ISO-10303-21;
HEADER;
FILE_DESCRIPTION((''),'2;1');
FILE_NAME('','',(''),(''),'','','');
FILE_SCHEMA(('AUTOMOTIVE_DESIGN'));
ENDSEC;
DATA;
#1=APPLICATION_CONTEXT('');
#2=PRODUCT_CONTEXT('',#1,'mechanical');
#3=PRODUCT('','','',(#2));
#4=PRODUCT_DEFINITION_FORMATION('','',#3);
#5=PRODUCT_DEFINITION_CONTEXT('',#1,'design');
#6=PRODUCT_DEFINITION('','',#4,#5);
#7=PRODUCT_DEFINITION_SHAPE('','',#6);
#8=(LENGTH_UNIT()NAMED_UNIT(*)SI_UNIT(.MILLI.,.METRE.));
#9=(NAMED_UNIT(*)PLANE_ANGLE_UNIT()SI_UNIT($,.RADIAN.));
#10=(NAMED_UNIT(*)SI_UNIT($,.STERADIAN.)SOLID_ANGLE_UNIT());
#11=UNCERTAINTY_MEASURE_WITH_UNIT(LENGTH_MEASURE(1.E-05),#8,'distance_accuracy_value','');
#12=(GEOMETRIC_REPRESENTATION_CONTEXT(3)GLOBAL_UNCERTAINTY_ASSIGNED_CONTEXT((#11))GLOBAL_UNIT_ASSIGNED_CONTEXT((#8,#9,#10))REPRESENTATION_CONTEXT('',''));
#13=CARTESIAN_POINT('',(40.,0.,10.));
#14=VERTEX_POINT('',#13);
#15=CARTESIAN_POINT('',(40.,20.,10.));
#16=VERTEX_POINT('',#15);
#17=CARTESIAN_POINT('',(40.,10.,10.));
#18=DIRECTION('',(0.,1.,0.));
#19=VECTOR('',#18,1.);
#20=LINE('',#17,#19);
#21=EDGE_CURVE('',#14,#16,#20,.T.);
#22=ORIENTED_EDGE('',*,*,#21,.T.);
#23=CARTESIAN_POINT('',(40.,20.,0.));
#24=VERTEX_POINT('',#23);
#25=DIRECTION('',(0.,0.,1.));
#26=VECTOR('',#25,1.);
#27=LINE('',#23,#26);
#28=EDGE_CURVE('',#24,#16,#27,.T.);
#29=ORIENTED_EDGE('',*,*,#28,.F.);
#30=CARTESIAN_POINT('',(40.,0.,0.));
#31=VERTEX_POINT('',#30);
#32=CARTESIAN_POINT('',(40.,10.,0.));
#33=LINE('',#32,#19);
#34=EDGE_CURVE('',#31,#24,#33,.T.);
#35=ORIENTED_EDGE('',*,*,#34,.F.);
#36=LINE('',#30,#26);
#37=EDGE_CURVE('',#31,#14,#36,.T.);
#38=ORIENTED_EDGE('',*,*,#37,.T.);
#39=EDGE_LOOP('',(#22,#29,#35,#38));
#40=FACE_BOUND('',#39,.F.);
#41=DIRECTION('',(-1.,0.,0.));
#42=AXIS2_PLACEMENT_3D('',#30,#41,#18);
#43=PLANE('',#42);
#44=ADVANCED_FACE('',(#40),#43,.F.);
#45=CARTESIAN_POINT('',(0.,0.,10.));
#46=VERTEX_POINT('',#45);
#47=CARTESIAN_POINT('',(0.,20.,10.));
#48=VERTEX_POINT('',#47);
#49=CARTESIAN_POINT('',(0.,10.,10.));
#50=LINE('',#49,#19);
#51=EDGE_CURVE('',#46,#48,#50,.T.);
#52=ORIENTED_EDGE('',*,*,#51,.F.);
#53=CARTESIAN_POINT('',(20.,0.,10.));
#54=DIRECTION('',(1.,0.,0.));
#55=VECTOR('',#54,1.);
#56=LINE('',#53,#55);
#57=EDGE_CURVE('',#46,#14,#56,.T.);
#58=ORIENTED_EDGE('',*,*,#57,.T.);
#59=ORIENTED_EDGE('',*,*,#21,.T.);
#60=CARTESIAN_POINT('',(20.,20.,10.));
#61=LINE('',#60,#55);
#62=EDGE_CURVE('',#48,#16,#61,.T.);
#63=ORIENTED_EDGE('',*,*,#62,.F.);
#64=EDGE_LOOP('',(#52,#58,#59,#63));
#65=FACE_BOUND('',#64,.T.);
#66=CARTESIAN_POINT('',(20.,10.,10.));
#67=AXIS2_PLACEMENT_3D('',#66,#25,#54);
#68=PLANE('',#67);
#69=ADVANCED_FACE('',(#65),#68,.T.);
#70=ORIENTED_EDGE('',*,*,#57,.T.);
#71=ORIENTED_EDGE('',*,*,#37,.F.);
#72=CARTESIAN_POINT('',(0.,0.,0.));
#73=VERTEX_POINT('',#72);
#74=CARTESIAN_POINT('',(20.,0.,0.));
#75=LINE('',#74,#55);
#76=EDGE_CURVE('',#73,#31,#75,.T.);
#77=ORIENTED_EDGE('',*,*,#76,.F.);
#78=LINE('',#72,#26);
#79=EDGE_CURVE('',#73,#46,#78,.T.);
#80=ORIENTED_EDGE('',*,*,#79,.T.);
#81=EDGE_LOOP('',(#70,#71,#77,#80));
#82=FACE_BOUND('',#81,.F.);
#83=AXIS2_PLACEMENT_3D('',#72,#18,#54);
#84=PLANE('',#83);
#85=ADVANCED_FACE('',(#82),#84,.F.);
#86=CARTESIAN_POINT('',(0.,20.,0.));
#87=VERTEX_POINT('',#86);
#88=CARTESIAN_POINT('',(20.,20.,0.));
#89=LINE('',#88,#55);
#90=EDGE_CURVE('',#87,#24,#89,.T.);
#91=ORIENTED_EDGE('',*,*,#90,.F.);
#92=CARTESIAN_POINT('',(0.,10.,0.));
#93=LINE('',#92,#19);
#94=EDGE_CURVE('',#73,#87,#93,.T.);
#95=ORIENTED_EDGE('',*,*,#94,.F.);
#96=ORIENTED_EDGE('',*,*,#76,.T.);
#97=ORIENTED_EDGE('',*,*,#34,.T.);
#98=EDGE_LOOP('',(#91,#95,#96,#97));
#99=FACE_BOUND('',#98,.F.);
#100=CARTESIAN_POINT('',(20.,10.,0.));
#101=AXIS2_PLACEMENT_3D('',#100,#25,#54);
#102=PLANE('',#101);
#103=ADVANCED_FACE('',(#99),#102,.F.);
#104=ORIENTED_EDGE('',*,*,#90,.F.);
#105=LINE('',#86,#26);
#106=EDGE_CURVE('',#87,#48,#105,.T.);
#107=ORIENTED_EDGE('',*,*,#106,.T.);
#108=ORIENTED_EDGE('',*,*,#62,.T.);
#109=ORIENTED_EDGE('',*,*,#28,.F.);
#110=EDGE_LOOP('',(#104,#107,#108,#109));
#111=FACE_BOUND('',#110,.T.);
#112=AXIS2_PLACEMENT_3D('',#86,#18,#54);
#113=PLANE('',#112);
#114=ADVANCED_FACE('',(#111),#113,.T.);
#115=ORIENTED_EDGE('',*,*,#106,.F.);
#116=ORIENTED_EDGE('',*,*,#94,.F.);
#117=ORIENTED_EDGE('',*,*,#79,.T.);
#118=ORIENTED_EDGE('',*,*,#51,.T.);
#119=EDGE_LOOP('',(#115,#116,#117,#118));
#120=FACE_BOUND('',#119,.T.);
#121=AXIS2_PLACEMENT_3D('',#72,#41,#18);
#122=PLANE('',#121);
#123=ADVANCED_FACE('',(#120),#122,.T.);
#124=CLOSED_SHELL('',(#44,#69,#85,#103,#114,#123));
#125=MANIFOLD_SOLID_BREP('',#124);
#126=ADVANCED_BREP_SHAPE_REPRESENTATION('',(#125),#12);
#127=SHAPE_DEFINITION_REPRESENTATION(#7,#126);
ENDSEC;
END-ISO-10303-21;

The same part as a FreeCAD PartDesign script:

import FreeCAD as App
import Part
import Sketcher

V = App.Vector


def add_polygon(sketch, points):
    """Adds a closed chain of lines whose ends are joined by coincident constraints."""
    first, n = sketch.GeometryCount, len(points)
    for a, b in zip(points, points[1:] + points[:1]):
        sketch.addGeometry(Part.LineSegment(App.Vector(*a, 0), App.Vector(*b, 0)), False)
    for i in range(n):
        sketch.addConstraint(Sketcher.Constraint("Coincident", first + i, 2, first + (i + 1) % n, 1))

doc = App.newDocument("Part")
body = doc.addObject("PartDesign::Body", "Body")

# Sketch on XY plane
sketch1 = body.newObject("Sketcher::SketchObject", "Sketch")
sketch1.AttachmentSupport = (doc.getObject("XY_Plane"), [""])
sketch1.MapMode = "FlatFace"
add_polygon(sketch1, [(0, 20), (0, 0), (40, 0), (40, 20)])  # lines 0-3
sketch1.addConstraint(Sketcher.Constraint("Vertical", 0))
sketch1.addConstraint(Sketcher.Constraint("Horizontal", 1))
sketch1.addConstraint(Sketcher.Constraint("Vertical", 2))
sketch1.addConstraint(Sketcher.Constraint("Horizontal", 3))
sketch1.addConstraint(Sketcher.Constraint("Coincident", 0, 2, -1, 1))
sketch1.addConstraint(Sketcher.Constraint("DistanceX", 1, 1, 1, 2, 40.0))
sketch1.addConstraint(Sketcher.Constraint("DistanceY", 0, 2, 0, 1, 20.0))
pad1 = body.newObject("PartDesign::Pad", "Pad")
pad1.Profile = sketch1
pad1.Length = 10

doc.recompute()
